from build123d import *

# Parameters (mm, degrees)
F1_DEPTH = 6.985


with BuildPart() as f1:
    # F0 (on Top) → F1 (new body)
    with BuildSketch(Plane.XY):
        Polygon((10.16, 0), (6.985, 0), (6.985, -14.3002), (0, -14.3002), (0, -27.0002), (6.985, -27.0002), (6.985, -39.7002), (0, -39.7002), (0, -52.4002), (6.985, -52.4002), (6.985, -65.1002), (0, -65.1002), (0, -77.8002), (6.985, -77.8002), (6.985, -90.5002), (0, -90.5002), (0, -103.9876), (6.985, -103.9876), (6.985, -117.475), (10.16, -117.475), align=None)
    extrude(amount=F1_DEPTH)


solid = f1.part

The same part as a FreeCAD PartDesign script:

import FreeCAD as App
import Part
import Sketcher

V = App.Vector
Q = App.Units.Quantity

doc = App.newDocument("Part")
params = doc.addObject("Spreadsheet::Sheet", "Params")
for row, (alias, value) in enumerate([
    ("sketch1_height", "0.5 in"),
    ("sketch1_width", "0.125 in"),
    ("sketch1_height2", "0.563 in"),
    ("sketch1_height3", "0.531 in"),
    ("pad1_length", "0.275 in"),
], start=1):
    params.set(f"A{row}", alias)
    params.set(f"B{row}", "=" + value)
    params.setAlias(f"B{row}", alias)

body = doc.addObject("PartDesign::Body", "Body")

sketch1 = body.newObject("Sketcher::SketchObject", "Sketch")
sketch1.AttachmentSupport = (doc.getObject("XY_Plane"), [""])
sketch1.MapMode = "FlatFace"
sketch1.addGeometry(Part.LineSegment(V(10.2, 0, 0), V(7, 0, 0)), False)
sketch1.addGeometry(Part.LineSegment(V(7, 0, 0), V(7, -14.3, 0)), False)
sketch1.addGeometry(Part.LineSegment(V(7, -14.3, 0), V(0, -14.3, 0)), False)
sketch1.addGeometry(Part.LineSegment(V(0, -14.3, 0), V(0, -27, 0)), False)
sketch1.addGeometry(Part.LineSegment(V(0, -27, 0), V(7, -27, 0)), False)
sketch1.addGeometry(Part.LineSegment(V(7, -27, 0), V(7, -39.7, 0)), False)
sketch1.addGeometry(Part.LineSegment(V(7, -39.7, 0), V(0, -39.7, 0)), False)
sketch1.addGeometry(Part.LineSegment(V(0, -39.7, 0), V(0, -52.4, 0)), False)
sketch1.addGeometry(Part.LineSegment(V(0, -52.4, 0), V(7, -52.4, 0)), False)
sketch1.addGeometry(Part.LineSegment(V(7, -52.4, 0), V(7, -65.1, 0)), False)
sketch1.addGeometry(Part.LineSegment(V(7, -65.1, 0), V(0, -65.1, 0)), False)
sketch1.addGeometry(Part.LineSegment(V(0, -65.1, 0), V(0, -77.8, 0)), False)
sketch1.addGeometry(Part.LineSegment(V(0, -77.8, 0), V(7, -77.8, 0)), False)
sketch1.addGeometry(Part.LineSegment(V(7, -77.8, 0), V(7, -90.5, 0)), False)
sketch1.addGeometry(Part.LineSegment(V(7, -90.5, 0), V(0, -90.5, 0)), False)
sketch1.addGeometry(Part.LineSegment(V(0, -90.5, 0), V(0, -104, 0)), False)
sketch1.addGeometry(Part.LineSegment(V(0, -104, 0), V(7, -104, 0)), False)
sketch1.addGeometry(Part.LineSegment(V(7, -104, 0), V(7, -117.5, 0)), False)
sketch1.addGeometry(Part.LineSegment(V(7, -117.5, 0), V(10.2, -117.5, 0)), False)
sketch1.addGeometry(Part.LineSegment(V(10.2, -117.5, 0), V(10.2, 0, 0)), False)
sketch1.addConstraint(Sketcher.Constraint("Coincident", 0, 2, 1, 1))
sketch1.addConstraint(Sketcher.Constraint("Coincident", 1, 2, 2, 1))
sketch1.addConstraint(Sketcher.Constraint("Coincident", 2, 2, 3, 1))
sketch1.addConstraint(Sketcher.Constraint("Coincident", 3, 2, 4, 1))
sketch1.addConstraint(Sketcher.Constraint("Coincident", 4, 2, 5, 1))
sketch1.addConstraint(Sketcher.Constraint("Coincident", 5, 2, 6, 1))
sketch1.addConstraint(Sketcher.Constraint("Coincident", 6, 2, 7, 1))
sketch1.addConstraint(Sketcher.Constraint("Coincident", 7, 2, 8, 1))
sketch1.addConstraint(Sketcher.Constraint("Coincident", 8, 2, 9, 1))
sketch1.addConstraint(Sketcher.Constraint("Coincident", 9, 2, 10, 1))
sketch1.addConstraint(Sketcher.Constraint("Coincident", 10, 2, 11, 1))
sketch1.addConstraint(Sketcher.Constraint("Coincident", 11, 2, 12, 1))
sketch1.addConstraint(Sketcher.Constraint("Coincident", 12, 2, 13, 1))
sketch1.addConstraint(Sketcher.Constraint("Coincident", 13, 2, 14, 1))
sketch1.addConstraint(Sketcher.Constraint("Coincident", 14, 2, 15, 1))
sketch1.addConstraint(Sketcher.Constraint("Coincident", 15, 2, 16, 1))
sketch1.addConstraint(Sketcher.Constraint("Coincident", 16, 2, 17, 1))
sketch1.addConstraint(Sketcher.Constraint("Coincident", 17, 2, 18, 1))
sketch1.addConstraint(Sketcher.Constraint("Coincident", 18, 2, 19, 1))
sketch1.addConstraint(Sketcher.Constraint("Coincident", 19, 2, 0, 1))
sketch1.addConstraint(Sketcher.Constraint("Horizontal", 0))
sketch1.addConstraint(Sketcher.Constraint("Vertical", 1))
sketch1.addConstraint(Sketcher.Constraint("Horizontal", 2))
sketch1.addConstraint(Sketcher.Constraint("Vertical", 3))
sketch1.addConstraint(Sketcher.Constraint("Horizontal", 4))
sketch1.addConstraint(Sketcher.Constraint("Vertical", 5))
sketch1.addConstraint(Sketcher.Constraint("Horizontal", 6))
sketch1.addConstraint(Sketcher.Constraint("Vertical", 7))
sketch1.addConstraint(Sketcher.Constraint("Horizontal", 8))
sketch1.addConstraint(Sketcher.Constraint("Vertical", 9))
sketch1.addConstraint(Sketcher.Constraint("Horizontal", 10))
sketch1.addConstraint(Sketcher.Constraint("Vertical", 11))
sketch1.addConstraint(Sketcher.Constraint("Horizontal", 12))
sketch1.addConstraint(Sketcher.Constraint("Vertical", 13))
sketch1.addConstraint(Sketcher.Constraint("Horizontal", 14))
sketch1.addConstraint(Sketcher.Constraint("Vertical", 15))
sketch1.addConstraint(Sketcher.Constraint("Horizontal", 16))
sketch1.addConstraint(Sketcher.Constraint("Vertical", 17))
sketch1.addConstraint(Sketcher.Constraint("Horizontal", 18))
sketch1.addConstraint(Sketcher.Constraint("Vertical", 19))
sketch1.addConstraint(Sketcher.Constraint("PointOnObject", 0, 2, -1))
sketch1.addConstraint(Sketcher.Constraint("PointOnObject", 2, 2, -2))
sketch1.addConstraint(Sketcher.Constraint("PointOnObject", 6, 2, -2))
sketch1.addConstraint(Sketcher.Constraint("PointOnObject", 10, 2, -2))
sketch1.addConstraint(Sketcher.Constraint("PointOnObject", 14, 2, -2))
sketch1.addConstraint(Sketcher.Constraint("Vertical", 1, 2, 4, 2))
sketch1.addConstraint(Sketcher.Constraint("Vertical", 5, 2, 8, 2))
sketch1.addConstraint(Sketcher.Constraint("Vertical", 9, 2, 12, 2))
sketch1.addConstraint(Sketcher.Constraint("Vertical", 13, 2, 16, 2))
sketch1.addConstraint(Sketcher.Constraint("Equal", 3, 5))
sketch1.addConstraint(Sketcher.Constraint("Equal", 5, 7))
sketch1.addConstraint(Sketcher.Constraint("Equal", 7, 9))
sketch1.addConstraint(Sketcher.Constraint("Equal", 9, 11))
sketch1.addConstraint(Sketcher.Constraint("Equal", 11, 13))
sketch1.addConstraint(Sketcher.Constraint("Equal", 15, 17))
sketch1.addConstraint(Sketcher.Constraint("DistanceY", 3, 2, 3, 1, Q("0.5 in")))
sketch1.addConstraint(Sketcher.Constraint("DistanceX", -1, 1, 18, 2, Q("0.4 in")))
sketch1.addConstraint(Sketcher.Constraint("DistanceX", 0, 2, 0, 1, Q("0.125 in")))
sketch1.addConstraint(Sketcher.Constraint("DistanceY", 1, 2, 1, 1, Q("0.563 in")))
sketch1.addConstraint(Sketcher.Constraint("DistanceY", 15, 2, 15, 1, Q("0.531 in")))
sketch1.setExpression("Constraints[55]", "Params.sketch1_height")
sketch1.setExpression("Constraints[57]", "Params.sketch1_width")
sketch1.setExpression("Constraints[58]", "Params.sketch1_height2")
sketch1.setExpression("Constraints[59]", "Params.sketch1_height3")
pad1 = body.newObject("PartDesign::Pad", "Pad")
pad1.Profile = sketch1
pad1.setExpression("Length", "Params.pad1_length")

doc.recompute()
